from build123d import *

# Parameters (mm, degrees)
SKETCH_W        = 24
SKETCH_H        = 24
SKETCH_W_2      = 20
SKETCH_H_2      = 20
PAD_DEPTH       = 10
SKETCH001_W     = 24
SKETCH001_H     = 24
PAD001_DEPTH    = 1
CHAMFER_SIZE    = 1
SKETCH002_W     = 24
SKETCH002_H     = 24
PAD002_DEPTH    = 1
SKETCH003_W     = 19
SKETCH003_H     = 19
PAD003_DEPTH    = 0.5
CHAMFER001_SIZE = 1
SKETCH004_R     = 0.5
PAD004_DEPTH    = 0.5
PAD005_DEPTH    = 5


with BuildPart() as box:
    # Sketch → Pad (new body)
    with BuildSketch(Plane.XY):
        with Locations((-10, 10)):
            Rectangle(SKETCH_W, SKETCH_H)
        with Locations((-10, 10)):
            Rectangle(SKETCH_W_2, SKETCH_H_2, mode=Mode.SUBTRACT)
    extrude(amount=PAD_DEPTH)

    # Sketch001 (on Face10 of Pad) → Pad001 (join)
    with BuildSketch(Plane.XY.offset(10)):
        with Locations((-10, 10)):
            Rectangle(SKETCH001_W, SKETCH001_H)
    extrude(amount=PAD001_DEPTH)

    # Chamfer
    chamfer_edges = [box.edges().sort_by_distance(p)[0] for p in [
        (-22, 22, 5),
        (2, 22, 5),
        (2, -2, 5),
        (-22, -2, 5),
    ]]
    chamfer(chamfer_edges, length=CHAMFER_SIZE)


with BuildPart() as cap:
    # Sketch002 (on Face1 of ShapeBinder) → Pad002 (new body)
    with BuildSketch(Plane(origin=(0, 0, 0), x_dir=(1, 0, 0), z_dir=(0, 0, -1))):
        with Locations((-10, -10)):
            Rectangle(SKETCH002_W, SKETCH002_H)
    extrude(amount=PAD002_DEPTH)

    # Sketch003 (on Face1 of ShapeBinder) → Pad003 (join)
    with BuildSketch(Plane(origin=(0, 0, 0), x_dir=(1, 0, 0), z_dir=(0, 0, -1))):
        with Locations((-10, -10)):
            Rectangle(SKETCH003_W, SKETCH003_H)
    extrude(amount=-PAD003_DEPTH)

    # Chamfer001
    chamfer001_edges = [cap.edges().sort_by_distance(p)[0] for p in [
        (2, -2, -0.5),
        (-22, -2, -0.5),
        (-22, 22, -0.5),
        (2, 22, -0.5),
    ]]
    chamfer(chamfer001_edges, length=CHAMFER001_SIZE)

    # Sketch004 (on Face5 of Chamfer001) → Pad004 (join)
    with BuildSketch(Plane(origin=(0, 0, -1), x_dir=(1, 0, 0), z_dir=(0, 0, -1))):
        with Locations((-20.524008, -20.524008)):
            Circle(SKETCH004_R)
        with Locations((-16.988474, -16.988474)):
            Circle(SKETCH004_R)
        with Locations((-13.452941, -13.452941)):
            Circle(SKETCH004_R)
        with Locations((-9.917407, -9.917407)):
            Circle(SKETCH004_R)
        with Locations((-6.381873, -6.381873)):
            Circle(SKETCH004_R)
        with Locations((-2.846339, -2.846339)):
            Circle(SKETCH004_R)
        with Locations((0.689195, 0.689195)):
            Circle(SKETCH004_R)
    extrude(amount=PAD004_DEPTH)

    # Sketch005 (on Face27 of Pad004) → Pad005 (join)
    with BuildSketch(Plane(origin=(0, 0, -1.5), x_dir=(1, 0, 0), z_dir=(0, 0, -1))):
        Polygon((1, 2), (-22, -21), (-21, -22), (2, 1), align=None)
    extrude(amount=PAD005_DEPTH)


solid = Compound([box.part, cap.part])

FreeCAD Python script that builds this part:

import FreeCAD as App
import Part
import Sketcher
Q = App.Units.Quantity


def edges_at(feature, points):
    """Names of the edges that pass closest to the given points."""
    edges = feature.Shape.Edges
    near = lambda p: min(range(len(edges)), key=lambda i: edges[i].distToShape(Part.Vertex(*p))[0])
    return sorted({f"Edge{near(p) + 1}" for p in points})


def add_polygon(sketch, points):
    """Adds a closed chain of lines whose ends are joined by coincident constraints."""
    first, n = sketch.GeometryCount, len(points)
    for a, b in zip(points, points[1:] + points[:1]):
        sketch.addGeometry(Part.LineSegment(App.Vector(*a, 0), App.Vector(*b, 0)), False)
    for i in range(n):
        sketch.addConstraint(Sketcher.Constraint("Coincident", first + i, 2, first + (i + 1) % n, 1))

doc = App.newDocument("Part")
body = doc.addObject("PartDesign::Body", "Body")

sketch1 = body.newObject("Sketcher::SketchObject", "Sketch")
sketch1.AttachmentSupport = (doc.getObject("XY_Plane"), [""])
sketch1.MapMode = "FlatFace"
add_polygon(sketch1, [(-22, 22), (-22, -2), (2, -2), (2, 22)])
add_polygon(sketch1, [(0, 0), (-20, 0), (-20, 20), (0, 20)])
sketch1.addConstraint([
    Sketcher.Constraint("Vertical", 0),
    Sketcher.Constraint("Horizontal", 1),
    Sketcher.Constraint("Vertical", 2),
    Sketcher.Constraint("Horizontal", 3),
    Sketcher.Constraint("Horizontal", 4),
    Sketcher.Constraint("Vertical", 5),
    Sketcher.Constraint("Horizontal", 6),
    Sketcher.Constraint("Vertical", 7),
    Sketcher.Constraint("Coincident", 7, 2, -1, 1),
    Sketcher.Constraint("Equal", 3, 0),
    Sketcher.Constraint("Equal", 6, 5),
    Sketcher.Constraint("DistanceX", 1, 1, 1, 2, Q("24 mm")),
    Sketcher.Constraint("DistanceX", 4, 2, 4, 1, Q("20 mm")),
    Sketcher.Constraint("DistanceX", 0, 2, -1, 1, Q("22 mm")),
    Sketcher.Constraint("DistanceY", 0, 2, -1, 1, Q("2 mm")),
])
pad1 = body.newObject("PartDesign::Pad", "Pad")
pad1.Profile = sketch1
pad1.Length = 10

sketch2 = body.newObject("Sketcher::SketchObject", "Sketch001")
sketch2.AttachmentSupport = (doc.getObject("XY_Plane"), [""])
sketch2.MapMode = "FlatFace"
sketch2.AttachmentOffset = App.Placement(App.Vector(0, 0, 10), App.Rotation())
add_polygon(sketch2, [(-22, 22), (-22, -2), (2, -2), (2, 22)])
sketch2.addConstraint([
    Sketcher.Constraint("Vertical", 0),
    Sketcher.Constraint("Horizontal", 1),
    Sketcher.Constraint("Vertical", 2),
    Sketcher.Constraint("Horizontal", 3),
    Sketcher.Constraint("Equal", 3, 0),
    Sketcher.Constraint("DistanceX", 1, 1, 1, 2, Q("24 mm")),
    Sketcher.Constraint("DistanceX", 0, 2, -1, 1, Q("22 mm")),
    Sketcher.Constraint("DistanceY", 0, 2, -1, 1, Q("2 mm")),
])
pad2 = body.newObject("PartDesign::Pad", "Pad001")
pad2.Profile = sketch2
pad2.Length = 1
doc.recompute()

chamfer = body.newObject("PartDesign::Chamfer", "Chamfer")
chamfer.Base = (pad2, edges_at(pad2, [
    (-22, 22, 5.5),
    (2, 22, 5.5),
    (2, -2, 5.5),
    (-22, -2, 5.5),
]))
chamfer.Size = 1
body2 = doc.addObject("PartDesign::Body", "Body001")

sketch3 = body2.newObject("Sketcher::SketchObject", "Sketch002")
sketch3.AttachmentSupport = (doc.getObject("XY_Plane001"), [""])
sketch3.MapMode = "FlatFace"
add_polygon(sketch3, [(-22, -2), (-22, 22), (2, 22), (2, -2)])
sketch3.addConstraint([
    Sketcher.Constraint("Vertical", 0),
    Sketcher.Constraint("Horizontal", 1),
    Sketcher.Constraint("Vertical", 2),
    Sketcher.Constraint("Horizontal", 3),
    Sketcher.Constraint("Equal", 3, 0),
    Sketcher.Constraint("DistanceX", 1, 1, 1, 2, Q("24 mm")),
    Sketcher.Constraint("DistanceX", 0, 2, -1, 1, Q("22 mm")),
    Sketcher.Constraint("DistanceY", -1, 1, 0, 2, Q("22 mm")),
])
pad3 = body2.newObject("PartDesign::Pad", "Pad002")
pad3.Profile = sketch3
pad3.Length = 1
pad3.Reversed = True

sketch4 = body2.newObject("Sketcher::SketchObject", "Sketch003")
sketch4.AttachmentSupport = (doc.getObject("XY_Plane001"), [""])
sketch4.MapMode = "FlatFace"
add_polygon(sketch4, [(-19.5, 0.5), (-19.5, 19.5), (-0.5, 19.5), (-0.5, 0.5)])
sketch4.addConstraint([
    Sketcher.Constraint("Vertical", 0),
    Sketcher.Constraint("Horizontal", 1),
    Sketcher.Constraint("Vertical", 2),
    Sketcher.Constraint("Horizontal", 3),
    Sketcher.Constraint("Equal", 3, 0),
    Sketcher.Constraint("DistanceX", 1, 1, 1, 2, Q("19 mm")),
    Sketcher.Constraint("DistanceX", 0, 2, -1, 1, Q("19.5 mm")),
    Sketcher.Constraint("DistanceY", -1, 1, 0, 2, Q("19.5 mm")),
])
pad4 = body2.newObject("PartDesign::Pad", "Pad003")
pad4.Profile = sketch4
pad4.Length = 0.5
doc.recompute()

chamfer2 = body2.newObject("PartDesign::Chamfer", "Chamfer001")
chamfer2.Base = (pad4, edges_at(pad4, [
    (2, -2, -0.5),
    (-22, -2, -0.5),
    (-22, 22, -0.5),
    (2, 22, -0.5),
]))
chamfer2.Size = 1

sketch5 = body2.newObject("Sketcher::SketchObject", "Sketch004")
sketch5.AttachmentSupport = (doc.getObject("XY_Plane001"), [""])
sketch5.MapMode = "FlatFace"
sketch5.AttachmentOffset = App.Placement(App.Vector(0, 0, -1), App.Rotation())
sketch5.addGeometry([
    Part.Circle(App.Vector(-20.524008, 20.524008, 0), App.Vector(0, 0, 1), 0.5),
    Part.Circle(App.Vector(-16.988474, 16.988474, 0), App.Vector(0, 0, 1), 0.5),
    Part.Circle(App.Vector(-13.452941, 13.452941, 0), App.Vector(0, 0, 1), 0.5),
    Part.Circle(App.Vector(-9.917407, 9.917407, 0), App.Vector(0, 0, 1), 0.5),
    Part.Circle(App.Vector(-6.381873, 6.381873, 0), App.Vector(0, 0, 1), 0.5),
    Part.Circle(App.Vector(-2.846339, 2.846339, 0), App.Vector(0, 0, 1), 0.5),
    Part.Circle(App.Vector(0.689195, -0.689195, 0), App.Vector(0, 0, 1), 0.5),
], False)
sketch5.addConstraint([
    Sketcher.Constraint("Equal", 0, 1),
    Sketcher.Constraint("Equal", 1, 2),
    Sketcher.Constraint("Equal", 2, 3),
    Sketcher.Constraint("Equal", 3, 4),
    Sketcher.Constraint("Equal", 4, 5),
    Sketcher.Constraint("Equal", 5, 6),
    Sketcher.Constraint("Diameter", 0, Q("1 mm")),
    Sketcher.Constraint("DistanceX", 0, 3, 3, 3, Q("10.606601 mm")),
    Sketcher.Constraint("DistanceY", 3, 3, 0, 3, Q("10.606601 mm")),
    Sketcher.Constraint("DistanceX", 1, 3, 4, 3, Q("10.606601 mm")),
    Sketcher.Constraint("DistanceY", 4, 3, 1, 3, Q("10.606601 mm")),
    Sketcher.Constraint("DistanceX", 2, 3, 5, 3, Q("10.606602 mm")),
    Sketcher.Constraint("DistanceY", 5, 3, 2, 3, Q("10.606602 mm")),
    Sketcher.Constraint("DistanceX", 2, 3, -1, 1, Q("13.452941 mm")),
    Sketcher.Constraint("DistanceY", -1, 1, 2, 3, Q("13.452941 mm")),
    Sketcher.Constraint("DistanceX", 3, 3, 5, 3, Q("7.071068 mm")),
    Sketcher.Constraint("DistanceY", 5, 3, 3, 3, Q("7.071068 mm")),
    Sketcher.Constraint("DistanceX", 1, 3, 6, 3, Q("17.677669 mm")),
    Sketcher.Constraint("DistanceY", 6, 3, 1, 3, Q("17.677669 mm")),
    Sketcher.Constraint("DistanceX", 1, 3, -1, 1, Q("16.988474 mm")),
    Sketcher.Constraint("DistanceY", -1, 1, 1, 3, Q("16.988474 mm")),
])
pad5 = body2.newObject("PartDesign::Pad", "Pad004")
pad5.Profile = sketch5
pad5.Length = 0.5
pad5.Reversed = True

sketch6 = body2.newObject("Sketcher::SketchObject", "Sketch005")
sketch6.AttachmentSupport = (doc.getObject("XY_Plane001"), [""])
sketch6.MapMode = "FlatFace"
sketch6.AttachmentOffset = App.Placement(App.Vector(0, 0, -1.5), App.Rotation())
add_polygon(sketch6, [(1, -2), (-22, 21), (-21, 22), (2, -1)])
sketch6.addConstraint([
    Sketcher.Constraint("Perpendicular", 0, 1),
    Sketcher.Constraint("Perpendicular", 1, 2),
    Sketcher.Constraint("Perpendicular", 2, 3),
    Sketcher.Constraint("Angle", 0, Q("135 deg")),
    Sketcher.Constraint("DistanceX", 0, 2, -1, 1, Q("22 mm")),
    Sketcher.Constraint("DistanceY", -1, 1, 0, 2, Q("21 mm")),
    Sketcher.Constraint("DistanceX", 1, 2, -1, 1, Q("21 mm")),
    Sketcher.Constraint("DistanceX", -1, 1, 2, 2, Q("2 mm")),
])
pad6 = body2.newObject("PartDesign::Pad", "Pad005")
pad6.Profile = sketch6
pad6.Length = 5
pad6.Reversed = True

doc.recompute()
